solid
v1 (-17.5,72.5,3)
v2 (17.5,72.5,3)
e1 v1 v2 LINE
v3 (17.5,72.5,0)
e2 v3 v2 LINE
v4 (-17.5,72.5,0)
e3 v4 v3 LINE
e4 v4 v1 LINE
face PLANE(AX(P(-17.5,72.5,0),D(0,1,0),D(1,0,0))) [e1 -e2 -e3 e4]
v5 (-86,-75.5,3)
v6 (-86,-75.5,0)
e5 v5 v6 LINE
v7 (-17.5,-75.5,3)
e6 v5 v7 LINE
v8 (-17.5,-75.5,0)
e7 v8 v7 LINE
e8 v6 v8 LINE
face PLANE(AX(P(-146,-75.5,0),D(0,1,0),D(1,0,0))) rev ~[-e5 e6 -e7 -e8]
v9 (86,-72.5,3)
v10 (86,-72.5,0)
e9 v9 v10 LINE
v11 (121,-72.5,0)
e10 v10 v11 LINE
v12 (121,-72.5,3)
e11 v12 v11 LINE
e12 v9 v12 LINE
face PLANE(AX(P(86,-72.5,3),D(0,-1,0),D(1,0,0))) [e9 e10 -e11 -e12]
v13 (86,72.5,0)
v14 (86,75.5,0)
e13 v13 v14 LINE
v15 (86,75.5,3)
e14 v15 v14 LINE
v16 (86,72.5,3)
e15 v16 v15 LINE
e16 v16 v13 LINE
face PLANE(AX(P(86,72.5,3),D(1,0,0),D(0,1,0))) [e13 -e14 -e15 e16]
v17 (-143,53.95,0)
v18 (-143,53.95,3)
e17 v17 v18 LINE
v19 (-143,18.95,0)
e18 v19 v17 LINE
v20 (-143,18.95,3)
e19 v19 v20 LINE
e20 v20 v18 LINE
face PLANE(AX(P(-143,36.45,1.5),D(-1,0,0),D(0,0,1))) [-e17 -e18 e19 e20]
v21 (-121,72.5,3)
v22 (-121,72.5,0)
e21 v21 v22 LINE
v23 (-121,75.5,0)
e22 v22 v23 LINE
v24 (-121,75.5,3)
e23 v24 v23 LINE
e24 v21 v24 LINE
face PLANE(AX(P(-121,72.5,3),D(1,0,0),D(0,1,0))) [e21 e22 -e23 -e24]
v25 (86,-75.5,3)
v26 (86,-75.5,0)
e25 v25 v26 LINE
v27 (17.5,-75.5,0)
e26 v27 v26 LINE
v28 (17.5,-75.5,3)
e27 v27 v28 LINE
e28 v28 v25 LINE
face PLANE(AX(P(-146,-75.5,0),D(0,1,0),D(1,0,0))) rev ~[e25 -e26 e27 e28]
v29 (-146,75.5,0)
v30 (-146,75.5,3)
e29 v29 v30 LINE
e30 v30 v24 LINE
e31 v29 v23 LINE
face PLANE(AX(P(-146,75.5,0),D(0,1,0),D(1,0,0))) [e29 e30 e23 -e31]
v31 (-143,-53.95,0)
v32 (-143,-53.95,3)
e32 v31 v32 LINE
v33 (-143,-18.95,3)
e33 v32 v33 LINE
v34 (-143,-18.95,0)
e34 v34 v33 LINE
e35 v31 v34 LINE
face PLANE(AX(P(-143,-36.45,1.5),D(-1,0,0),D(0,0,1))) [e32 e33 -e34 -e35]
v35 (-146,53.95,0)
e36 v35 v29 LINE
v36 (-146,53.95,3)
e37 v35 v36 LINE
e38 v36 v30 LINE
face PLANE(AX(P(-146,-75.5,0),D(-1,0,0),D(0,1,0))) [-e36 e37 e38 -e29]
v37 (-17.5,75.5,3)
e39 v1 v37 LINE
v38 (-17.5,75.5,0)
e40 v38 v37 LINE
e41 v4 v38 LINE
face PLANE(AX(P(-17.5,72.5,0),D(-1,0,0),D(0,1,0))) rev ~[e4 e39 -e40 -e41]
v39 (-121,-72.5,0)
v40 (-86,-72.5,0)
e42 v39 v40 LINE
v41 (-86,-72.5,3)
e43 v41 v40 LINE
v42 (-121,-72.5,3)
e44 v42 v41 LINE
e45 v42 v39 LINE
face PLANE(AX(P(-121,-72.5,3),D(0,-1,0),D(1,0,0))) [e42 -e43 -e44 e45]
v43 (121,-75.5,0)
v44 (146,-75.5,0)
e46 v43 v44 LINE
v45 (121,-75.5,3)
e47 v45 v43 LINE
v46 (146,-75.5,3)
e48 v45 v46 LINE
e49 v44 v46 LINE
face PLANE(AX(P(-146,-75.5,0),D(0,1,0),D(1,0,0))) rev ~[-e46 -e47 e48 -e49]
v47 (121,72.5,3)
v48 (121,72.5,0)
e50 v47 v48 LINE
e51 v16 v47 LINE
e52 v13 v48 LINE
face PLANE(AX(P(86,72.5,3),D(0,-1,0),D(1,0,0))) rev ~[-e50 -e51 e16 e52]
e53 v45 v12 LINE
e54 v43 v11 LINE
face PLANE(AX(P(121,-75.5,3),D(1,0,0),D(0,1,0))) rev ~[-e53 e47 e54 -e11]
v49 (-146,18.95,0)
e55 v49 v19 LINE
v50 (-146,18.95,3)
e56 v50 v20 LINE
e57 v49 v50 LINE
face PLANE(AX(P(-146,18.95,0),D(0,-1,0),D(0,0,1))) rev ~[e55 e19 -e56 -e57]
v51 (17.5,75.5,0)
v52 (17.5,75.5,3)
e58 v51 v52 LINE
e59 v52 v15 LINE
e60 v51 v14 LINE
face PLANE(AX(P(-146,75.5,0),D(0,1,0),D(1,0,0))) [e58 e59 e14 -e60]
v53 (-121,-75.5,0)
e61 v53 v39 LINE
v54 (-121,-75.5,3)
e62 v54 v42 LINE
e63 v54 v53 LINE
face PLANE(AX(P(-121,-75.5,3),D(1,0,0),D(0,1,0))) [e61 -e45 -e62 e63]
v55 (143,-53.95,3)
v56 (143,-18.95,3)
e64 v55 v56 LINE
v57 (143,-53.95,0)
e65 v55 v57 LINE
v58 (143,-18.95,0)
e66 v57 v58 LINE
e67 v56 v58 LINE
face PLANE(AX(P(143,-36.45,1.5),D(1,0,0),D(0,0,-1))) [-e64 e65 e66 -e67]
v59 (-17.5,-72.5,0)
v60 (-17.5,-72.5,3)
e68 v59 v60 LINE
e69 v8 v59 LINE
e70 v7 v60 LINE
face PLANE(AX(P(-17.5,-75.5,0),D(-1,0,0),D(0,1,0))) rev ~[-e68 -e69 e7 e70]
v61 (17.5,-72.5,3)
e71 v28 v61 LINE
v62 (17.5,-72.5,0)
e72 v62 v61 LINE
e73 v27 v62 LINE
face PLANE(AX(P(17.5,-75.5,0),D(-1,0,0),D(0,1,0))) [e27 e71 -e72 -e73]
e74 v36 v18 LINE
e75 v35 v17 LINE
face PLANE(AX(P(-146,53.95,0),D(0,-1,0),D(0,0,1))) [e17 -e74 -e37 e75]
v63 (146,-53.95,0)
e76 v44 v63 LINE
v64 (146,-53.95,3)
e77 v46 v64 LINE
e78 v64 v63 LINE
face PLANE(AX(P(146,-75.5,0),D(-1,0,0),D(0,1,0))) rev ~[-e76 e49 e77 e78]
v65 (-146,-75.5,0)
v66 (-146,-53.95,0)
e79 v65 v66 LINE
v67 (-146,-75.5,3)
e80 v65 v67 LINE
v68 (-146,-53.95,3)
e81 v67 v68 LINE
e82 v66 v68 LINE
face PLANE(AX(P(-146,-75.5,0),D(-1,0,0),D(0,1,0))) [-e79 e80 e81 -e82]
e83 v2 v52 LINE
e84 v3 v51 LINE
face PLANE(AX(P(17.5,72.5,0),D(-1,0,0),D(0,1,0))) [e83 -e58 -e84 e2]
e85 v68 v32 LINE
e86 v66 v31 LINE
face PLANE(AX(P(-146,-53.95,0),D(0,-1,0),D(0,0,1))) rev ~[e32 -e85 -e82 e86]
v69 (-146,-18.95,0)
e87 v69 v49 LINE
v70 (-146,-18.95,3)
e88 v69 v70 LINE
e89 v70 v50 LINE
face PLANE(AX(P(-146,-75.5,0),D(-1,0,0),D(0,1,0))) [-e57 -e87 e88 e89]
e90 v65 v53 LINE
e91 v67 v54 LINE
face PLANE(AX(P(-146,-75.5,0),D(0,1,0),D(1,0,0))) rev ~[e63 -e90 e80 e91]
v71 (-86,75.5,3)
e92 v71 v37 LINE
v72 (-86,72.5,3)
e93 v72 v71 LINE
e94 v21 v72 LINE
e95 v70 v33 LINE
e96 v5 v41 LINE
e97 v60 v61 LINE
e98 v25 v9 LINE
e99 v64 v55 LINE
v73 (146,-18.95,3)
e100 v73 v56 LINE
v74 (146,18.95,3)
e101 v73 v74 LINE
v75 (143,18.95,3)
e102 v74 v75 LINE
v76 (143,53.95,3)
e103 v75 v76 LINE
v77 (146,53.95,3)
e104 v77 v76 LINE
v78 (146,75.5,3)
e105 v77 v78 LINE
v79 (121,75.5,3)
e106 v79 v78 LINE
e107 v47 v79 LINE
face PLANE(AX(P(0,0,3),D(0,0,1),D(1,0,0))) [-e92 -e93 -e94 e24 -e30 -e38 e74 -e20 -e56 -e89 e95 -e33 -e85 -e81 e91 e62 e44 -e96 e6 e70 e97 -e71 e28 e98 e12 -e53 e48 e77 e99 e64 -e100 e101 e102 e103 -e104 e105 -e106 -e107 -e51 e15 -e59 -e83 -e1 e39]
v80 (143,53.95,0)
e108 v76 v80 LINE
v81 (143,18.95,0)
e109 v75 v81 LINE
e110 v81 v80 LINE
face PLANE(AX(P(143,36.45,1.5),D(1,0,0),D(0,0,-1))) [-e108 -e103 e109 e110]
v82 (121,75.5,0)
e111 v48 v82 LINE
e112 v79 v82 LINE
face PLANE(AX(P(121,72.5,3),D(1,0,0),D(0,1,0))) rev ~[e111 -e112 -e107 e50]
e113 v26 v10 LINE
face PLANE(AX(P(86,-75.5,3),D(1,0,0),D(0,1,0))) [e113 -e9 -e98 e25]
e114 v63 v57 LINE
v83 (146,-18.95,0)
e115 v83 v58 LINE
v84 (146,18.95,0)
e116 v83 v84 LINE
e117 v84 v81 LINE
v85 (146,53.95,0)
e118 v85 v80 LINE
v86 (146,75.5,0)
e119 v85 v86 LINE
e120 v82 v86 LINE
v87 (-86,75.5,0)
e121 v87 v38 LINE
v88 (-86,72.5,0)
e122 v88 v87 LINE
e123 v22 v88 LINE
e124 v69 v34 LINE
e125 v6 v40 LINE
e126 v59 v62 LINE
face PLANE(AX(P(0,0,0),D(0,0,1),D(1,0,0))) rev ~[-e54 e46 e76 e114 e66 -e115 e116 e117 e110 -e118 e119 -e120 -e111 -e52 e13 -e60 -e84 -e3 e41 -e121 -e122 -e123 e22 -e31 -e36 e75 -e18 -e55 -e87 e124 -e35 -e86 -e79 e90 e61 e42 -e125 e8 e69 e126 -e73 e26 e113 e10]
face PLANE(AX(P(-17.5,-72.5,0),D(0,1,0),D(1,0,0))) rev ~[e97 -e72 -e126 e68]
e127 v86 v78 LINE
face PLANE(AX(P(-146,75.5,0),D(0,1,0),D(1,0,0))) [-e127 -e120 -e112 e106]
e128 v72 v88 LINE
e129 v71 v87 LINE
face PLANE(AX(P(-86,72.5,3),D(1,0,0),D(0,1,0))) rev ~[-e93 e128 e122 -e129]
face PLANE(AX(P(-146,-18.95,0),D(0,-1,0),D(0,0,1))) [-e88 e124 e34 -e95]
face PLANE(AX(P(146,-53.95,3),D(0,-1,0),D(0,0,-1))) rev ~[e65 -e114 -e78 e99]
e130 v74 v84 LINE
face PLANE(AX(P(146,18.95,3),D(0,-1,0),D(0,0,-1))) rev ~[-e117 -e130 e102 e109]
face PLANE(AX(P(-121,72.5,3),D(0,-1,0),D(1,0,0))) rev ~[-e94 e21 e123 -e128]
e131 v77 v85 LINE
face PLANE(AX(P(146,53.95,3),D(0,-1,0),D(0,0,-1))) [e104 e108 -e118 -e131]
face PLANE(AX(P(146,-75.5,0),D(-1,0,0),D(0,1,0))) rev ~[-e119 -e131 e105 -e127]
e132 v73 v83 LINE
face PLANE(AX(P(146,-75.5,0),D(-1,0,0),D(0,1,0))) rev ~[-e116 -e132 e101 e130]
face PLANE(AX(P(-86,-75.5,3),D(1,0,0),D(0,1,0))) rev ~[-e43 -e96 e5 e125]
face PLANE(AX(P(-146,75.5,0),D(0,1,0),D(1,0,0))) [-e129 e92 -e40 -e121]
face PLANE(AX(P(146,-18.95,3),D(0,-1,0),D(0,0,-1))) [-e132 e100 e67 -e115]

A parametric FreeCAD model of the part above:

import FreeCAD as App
import Part
import Sketcher
from FreeCAD import Vector
Q = App.Units.Quantity


def add_polygon(sketch, points):
    """Adds a closed chain of lines whose ends are joined by coincident constraints."""
    first, n = sketch.GeometryCount, len(points)
    for a, b in zip(points, points[1:] + points[:1]):
        sketch.addGeometry(Part.LineSegment(App.Vector(*a, 0), App.Vector(*b, 0)), False)
    for i in range(n):
        sketch.addConstraint(Sketcher.Constraint("Coincident", first + i, 2, first + (i + 1) % n, 1))

doc = App.newDocument("Part")
body = doc.addObject("PartDesign::Body", "Body")

# Sketch on XY plane
sketch1 = doc.addObject("Sketcher::SketchObject", "Sketch")
body.addObject(sketch1)
sketch1.AttachmentSupport = (doc.XY_Plane, [""])
sketch1.MapMode = "FlatFace"
add_polygon(sketch1, [(-146, 75.5), (-146, -75.5), (146, -75.5), (146, 75.5)])  # lines 0-3
sketch1.addConstraint([
    Sketcher.Constraint("Vertical", 0),
    Sketcher.Constraint("Horizontal", 1),
    Sketcher.Constraint("Vertical", 2),
    Sketcher.Constraint("Horizontal", 3),
    Sketcher.Constraint("Symmetric", 0, 2, 2, 2, -1, 1),
    Sketcher.Constraint("DistanceX", 1, 1, 1, 2, Q("292 mm")),
    Sketcher.Constraint("DistanceY", 0, 2, 0, 1, Q("151 mm")),
])
pad1 = doc.addObject("PartDesign::Pad", "Pad")
body.addObject(pad1)
pad1.Profile = sketch1
pad1.Length = 3

# Sketch on XY plane
sketch2 = doc.addObject("Sketcher::SketchObject", "Sketch001")
body.addObject(sketch2)
sketch2.AttachmentSupport = (doc.XY_Plane, [""])
sketch2.MapMode = "FlatFace"
sketch2.AttachmentOffset = App.Placement(Vector(0, 0, 3), App.Rotation())
add_polygon(sketch2, [(86, 75.5), (86, 72.5), (121, 72.5), (121, 75.5)])  # lines 0-3
add_polygon(sketch2, [(-121, 75.5), (-121, 72.5), (-86, 72.5), (-86, 75.5)])  # lines 4-7
add_polygon(sketch2, [(-121, -72.5), (-121, -75.5), (-86, -75.5), (-86, -72.5)])  # lines 8-11
add_polygon(sketch2, [(86, -72.5), (86, -75.5), (121, -75.5), (121, -72.5)])  # lines 12-15
sketch2.addConstraint([
    Sketcher.Constraint("Vertical", 0),
    Sketcher.Constraint("Horizontal", 1),
    Sketcher.Constraint("Vertical", 2),
    Sketcher.Constraint("Horizontal", 3),
    Sketcher.Constraint("Vertical", 4),
    Sketcher.Constraint("Horizontal", 5),
    Sketcher.Constraint("Vertical", 6),
    Sketcher.Constraint("Horizontal", 7),
    Sketcher.Constraint("Vertical", 8),
    Sketcher.Constraint("Horizontal", 9),
    Sketcher.Constraint("Vertical", 10),
    Sketcher.Constraint("Horizontal", 11),
    Sketcher.Constraint("Vertical", 12),
    Sketcher.Constraint("Horizontal", 13),
    Sketcher.Constraint("Vertical", 14),
    Sketcher.Constraint("Horizontal", 15),
    Sketcher.Constraint("Symmetric", 2, 2, 8, 2, -1, 1),
    Sketcher.Constraint("Symmetric", 0, 2, 10, 2, -1, 1),
    Sketcher.Constraint("Symmetric", 6, 2, 12, 2, -1, 1),
    Sketcher.Constraint("Symmetric", 4, 2, 14, 2, -1, 1),
    Sketcher.Constraint("Symmetric", 1, 2, 4, 2, -2),
    Sketcher.Constraint("Symmetric", 3, 2, 6, 2, -2),
    Sketcher.Constraint("DistanceX", 1, 1, 1, 2, Q("35 mm")),
    Sketcher.Constraint("DistanceY", 0, 2, 0, 1, Q("3 mm")),
    Sketcher.Constraint("DistanceX", -1, 1, 0, 2, Q("86 mm")),
    Sketcher.Constraint("DistanceY", 8, 2, 4, 2, Q("148 mm")),
])
pocket1 = doc.addObject("PartDesign::Pocket", "Pocket")
body.addObject(pocket1)
pocket1.Profile = sketch2
pocket1.Length = 3

# Sketch on XY plane
sketch3 = doc.addObject("Sketcher::SketchObject", "Sketch002")
body.addObject(sketch3)
sketch3.AttachmentSupport = (doc.XY_Plane, [""])
sketch3.MapMode = "FlatFace"
add_polygon(sketch3, [(-17.5, -72.5), (-17.5, -75.5), (17.5, -75.5), (17.5, -72.5)])  # lines 0-3
add_polygon(sketch3, [(-17.5, 75.5), (-17.5, 72.5), (17.5, 72.5), (17.5, 75.5)])  # lines 4-7
sketch3.addConstraint([
    Sketcher.Constraint("Vertical", 0),
    Sketcher.Constraint("Horizontal", 1),
    Sketcher.Constraint("Vertical", 2),
    Sketcher.Constraint("Horizontal", 3),
    Sketcher.Constraint("Vertical", 4),
    Sketcher.Constraint("Horizontal", 5),
    Sketcher.Constraint("Vertical", 6),
    Sketcher.Constraint("Horizontal", 7),
    Sketcher.Constraint("Symmetric", 2, 2, 4, 2, -1, 1),
    Sketcher.Constraint("Symmetric", 0, 2, 6, 2, -1, 1),
    Sketcher.Constraint("Vertical", 3, 2, 4, 2),
    Sketcher.Constraint("DistanceX", 1, 1, 1, 2, Q("35 mm")),
    Sketcher.Constraint("DistanceY", 0, 2, 0, 1, Q("3 mm")),
    Sketcher.Constraint("DistanceY", 3, 2, 4, 2, Q("145 mm")),
])
pocket2 = doc.addObject("PartDesign::Pocket", "Pocket001")
body.addObject(pocket2)
pocket2.Profile = sketch3
pocket2.Length = 3
pocket2.Reversed = True

# Sketch on YZ plane
sketch4 = doc.addObject("Sketcher::SketchObject", "Sketch003")
body.addObject(sketch4)
sketch4.AttachmentSupport = (doc.YZ_Plane, [""])
sketch4.MapMode = "FlatFace"
sketch4.AttachmentOffset = App.Placement(Vector(0, 0, 146), App.Rotation())
add_polygon(sketch4, [(-18.95, 3), (-53.95, 3), (-53.95, 0), (-18.95, 0)])  # lines 0-3
add_polygon(sketch4, [(53.95, 3), (18.95, 3), (18.95, 0), (53.95, 0)])  # lines 4-7
sketch4.addConstraint([
    Sketcher.Constraint("Horizontal", 0),
    Sketcher.Constraint("Vertical", 1),
    Sketcher.Constraint("Horizontal", 2),
    Sketcher.Constraint("Vertical", 3),
    Sketcher.Constraint("Horizontal", 4),
    Sketcher.Constraint("Vertical", 5),
    Sketcher.Constraint("Horizontal", 6),
    Sketcher.Constraint("Vertical", 7),
    Sketcher.Constraint("Symmetric", 2, 2, 5, 2, -1, 1),
    Sketcher.Constraint("Symmetric", 1, 2, 6, 2, -2),
    Sketcher.Constraint("Horizontal", 3, 2, 4, 2),
    Sketcher.Constraint("DistanceX", 0, 2, 0, 1, Q("35 mm")),
    Sketcher.Constraint("DistanceY", 1, 2, 1, 1, Q("3 mm")),
    Sketcher.Constraint("DistanceX", 3, 2, 4, 2, Q("37.9 mm")),
])
pocket3 = doc.addObject("PartDesign::Pocket", "Pocket002")
body.addObject(pocket3)
pocket3.Profile = sketch4
pocket3.Length = 3

# Sketch on YZ plane
sketch5 = doc.addObject("Sketcher::SketchObject", "Sketch004")
body.addObject(sketch5)
sketch5.AttachmentSupport = (doc.YZ_Plane, [""])
sketch5.MapMode = "FlatFace"
sketch5.AttachmentOffset = App.Placement(Vector(0, 0, -146), App.Rotation())
add_polygon(sketch5, [(-18.95, 0), (-53.95, 0), (-53.95, 3), (-18.95, 3)])  # lines 0-3
add_polygon(sketch5, [(53.95, 0), (18.95, 0), (18.95, 3), (53.95, 3)])  # lines 4-7
sketch5.addConstraint([
    Sketcher.Constraint("Horizontal", 0),
    Sketcher.Constraint("Vertical", 1),
    Sketcher.Constraint("Horizontal", 2),
    Sketcher.Constraint("Vertical", 3),
    Sketcher.Constraint("Horizontal", 4),
    Sketcher.Constraint("Vertical", 5),
    Sketcher.Constraint("Horizontal", 6),
    Sketcher.Constraint("Vertical", 7),
    Sketcher.Constraint("Symmetric", 3, 2, 4, 2, -1, 1),
    Sketcher.Constraint("Symmetric", 1, 2, 6, 2, -2),
    Sketcher.Constraint("PointOnObject", 0, 2, -1),
    Sketcher.Constraint("DistanceX", 0, 2, 0, 1, Q("35 mm")),
    Sketcher.Constraint("DistanceY", 1, 1, 1, 2, Q("3 mm")),
    Sketcher.Constraint("DistanceX", 3, 2, 4, 2, Q("37.9 mm")),
])
pocket4 = doc.addObject("PartDesign::Pocket", "Pocket003")
body.addObject(pocket4)
pocket4.Profile = sketch5
pocket4.Length = 3
pocket4.Reversed = True

doc.recompute()
